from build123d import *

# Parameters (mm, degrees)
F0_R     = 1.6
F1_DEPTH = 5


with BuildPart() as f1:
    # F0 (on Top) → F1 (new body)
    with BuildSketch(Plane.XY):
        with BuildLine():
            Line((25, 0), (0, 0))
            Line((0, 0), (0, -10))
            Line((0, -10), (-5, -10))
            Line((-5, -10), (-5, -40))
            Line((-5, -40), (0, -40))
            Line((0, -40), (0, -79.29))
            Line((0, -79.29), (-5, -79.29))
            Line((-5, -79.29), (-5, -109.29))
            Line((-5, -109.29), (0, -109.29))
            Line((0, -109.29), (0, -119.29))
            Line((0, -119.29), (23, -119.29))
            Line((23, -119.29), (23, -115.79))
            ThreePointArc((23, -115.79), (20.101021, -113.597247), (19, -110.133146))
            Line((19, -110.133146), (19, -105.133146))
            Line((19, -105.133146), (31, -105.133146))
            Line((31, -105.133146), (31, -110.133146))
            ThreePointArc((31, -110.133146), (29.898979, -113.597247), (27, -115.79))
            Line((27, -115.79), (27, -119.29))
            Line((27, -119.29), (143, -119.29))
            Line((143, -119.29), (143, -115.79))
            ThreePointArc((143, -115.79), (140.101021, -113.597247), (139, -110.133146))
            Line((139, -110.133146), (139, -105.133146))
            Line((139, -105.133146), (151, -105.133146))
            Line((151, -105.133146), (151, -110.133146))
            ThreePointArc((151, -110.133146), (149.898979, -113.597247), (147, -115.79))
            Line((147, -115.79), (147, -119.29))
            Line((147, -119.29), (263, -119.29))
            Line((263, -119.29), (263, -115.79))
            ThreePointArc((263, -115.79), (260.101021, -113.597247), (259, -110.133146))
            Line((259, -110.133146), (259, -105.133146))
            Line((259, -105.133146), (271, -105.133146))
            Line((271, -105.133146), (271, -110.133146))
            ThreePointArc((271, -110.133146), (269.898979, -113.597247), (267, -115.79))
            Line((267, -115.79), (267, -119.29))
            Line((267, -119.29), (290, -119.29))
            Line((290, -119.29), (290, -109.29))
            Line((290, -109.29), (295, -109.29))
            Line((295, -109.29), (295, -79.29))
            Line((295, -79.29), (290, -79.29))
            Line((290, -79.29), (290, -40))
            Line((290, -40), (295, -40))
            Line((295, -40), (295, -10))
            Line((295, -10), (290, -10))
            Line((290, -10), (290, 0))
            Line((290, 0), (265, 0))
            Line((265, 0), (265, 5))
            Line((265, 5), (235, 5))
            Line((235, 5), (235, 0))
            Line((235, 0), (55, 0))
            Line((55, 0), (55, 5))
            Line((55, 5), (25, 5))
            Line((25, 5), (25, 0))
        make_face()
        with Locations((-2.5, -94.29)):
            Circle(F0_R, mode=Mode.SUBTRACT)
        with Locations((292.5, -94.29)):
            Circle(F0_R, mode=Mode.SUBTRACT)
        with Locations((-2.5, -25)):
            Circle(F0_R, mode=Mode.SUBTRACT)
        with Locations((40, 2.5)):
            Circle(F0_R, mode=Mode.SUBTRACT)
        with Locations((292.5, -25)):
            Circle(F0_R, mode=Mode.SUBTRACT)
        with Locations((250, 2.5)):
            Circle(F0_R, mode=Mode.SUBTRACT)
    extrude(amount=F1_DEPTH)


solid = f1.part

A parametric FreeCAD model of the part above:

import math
import FreeCAD as App
import Part
import Sketcher
from FreeCAD import Vector
Q = App.Units.Quantity

doc = App.newDocument("Part")
body = doc.addObject("PartDesign::Body", "Body")

# Sketch on XY plane
sketch1 = body.newObject("Sketcher::SketchObject", "Sketch")
sketch1.AttachmentSupport = (doc.getObject("XY_Plane"), [""])
sketch1.MapMode = "FlatFace"
sketch1.addGeometry(Part.LineSegment(Vector(25, 0, 0), Vector(0, 0, 0)), False)
sketch1.addGeometry(Part.LineSegment(Vector(0, 0, 0), Vector(0, -10, 0)), False)
sketch1.addGeometry(Part.LineSegment(Vector(0, -10, 0), Vector(-5, -10, 0)), False)
sketch1.addGeometry(Part.LineSegment(Vector(-5, -10, 0), Vector(-5, -40, 0)), False)
sketch1.addGeometry(Part.LineSegment(Vector(-5, -40, 0), Vector(0, -40, 0)), False)
sketch1.addGeometry(Part.LineSegment(Vector(0, -40, 0), Vector(0, -79.3, 0)), False)
sketch1.addGeometry(Part.LineSegment(Vector(0, -79.3, 0), Vector(-5, -79.3, 0)), False)
sketch1.addGeometry(Part.LineSegment(Vector(-5, -79.3, 0), Vector(-5, -109.3, 0)), False)
sketch1.addGeometry(Part.LineSegment(Vector(-5, -109.3, 0), Vector(0, -109.3, 0)), False)
sketch1.addGeometry(Part.LineSegment(Vector(0, -109.3, 0), Vector(0, -119.3, 0)), False)
sketch1.addGeometry(Part.LineSegment(Vector(0, -119.3, 0), Vector(23, -119.3, 0)), False)
sketch1.addGeometry(Part.LineSegment(Vector(23, -119.3, 0), Vector(23, -115.8, 0)), False)
sketch1.addGeometry(Part.ArcOfCircle(Part.Circle(Vector(25, -110.1, 0), Vector(0, 0, 1), 6), math.radians(-180), math.radians(-109)), False)
sketch1.addGeometry(Part.LineSegment(Vector(19, -110.1, 0), Vector(19, -105.1, 0)), False)
sketch1.addGeometry(Part.LineSegment(Vector(19, -105.1, 0), Vector(31, -105.1, 0)), False)
sketch1.addGeometry(Part.LineSegment(Vector(31, -105.1, 0), Vector(31, -110.1, 0)), False)
sketch1.addGeometry(Part.ArcOfCircle(Part.Circle(Vector(25, -110.1, 0), Vector(0, 0, 1), 6), math.radians(-71), math.radians(0)), False)
sketch1.addGeometry(Part.LineSegment(Vector(27, -115.8, 0), Vector(27, -119.3, 0)), False)
sketch1.addGeometry(Part.LineSegment(Vector(27, -119.3, 0), Vector(143, -119.3, 0)), False)
sketch1.addGeometry(Part.LineSegment(Vector(143, -119.3, 0), Vector(143, -115.8, 0)), False)
sketch1.addGeometry(Part.ArcOfCircle(Part.Circle(Vector(145, -110.1, 0), Vector(0, 0, 1), 6), math.radians(-180), math.radians(-109)), False)
sketch1.addGeometry(Part.LineSegment(Vector(139, -110.1, 0), Vector(139, -105.1, 0)), False)
sketch1.addGeometry(Part.LineSegment(Vector(139, -105.1, 0), Vector(151, -105.1, 0)), False)
sketch1.addGeometry(Part.LineSegment(Vector(151, -105.1, 0), Vector(151, -110.1, 0)), False)
sketch1.addGeometry(Part.ArcOfCircle(Part.Circle(Vector(145, -110.1, 0), Vector(0, 0, 1), 6), math.radians(-71), math.radians(0)), False)
sketch1.addGeometry(Part.LineSegment(Vector(147, -115.8, 0), Vector(147, -119.3, 0)), False)
sketch1.addGeometry(Part.LineSegment(Vector(147, -119.3, 0), Vector(263, -119.3, 0)), False)
sketch1.addGeometry(Part.LineSegment(Vector(263, -119.3, 0), Vector(263, -115.8, 0)), False)
sketch1.addGeometry(Part.ArcOfCircle(Part.Circle(Vector(265, -110.1, 0), Vector(0, 0, 1), 6), math.radians(-180), math.radians(-109)), False)
sketch1.addGeometry(Part.LineSegment(Vector(259, -110.1, 0), Vector(259, -105.1, 0)), False)
sketch1.addGeometry(Part.LineSegment(Vector(259, -105.1, 0), Vector(271, -105.1, 0)), False)
sketch1.addGeometry(Part.LineSegment(Vector(271, -105.1, 0), Vector(271, -110.1, 0)), False)
sketch1.addGeometry(Part.ArcOfCircle(Part.Circle(Vector(265, -110.1, 0), Vector(0, 0, 1), 6), math.radians(-71), math.radians(0)), False)
sketch1.addGeometry(Part.LineSegment(Vector(267, -115.8, 0), Vector(267, -119.3, 0)), False)
sketch1.addGeometry(Part.LineSegment(Vector(267, -119.3, 0), Vector(290, -119.3, 0)), False)
sketch1.addGeometry(Part.LineSegment(Vector(290, -119.3, 0), Vector(290, -109.3, 0)), False)
sketch1.addGeometry(Part.LineSegment(Vector(290, -109.3, 0), Vector(295, -109.3, 0)), False)
sketch1.addGeometry(Part.LineSegment(Vector(295, -109.3, 0), Vector(295, -79.3, 0)), False)
sketch1.addGeometry(Part.LineSegment(Vector(295, -79.3, 0), Vector(290, -79.3, 0)), False)
sketch1.addGeometry(Part.LineSegment(Vector(290, -79.3, 0), Vector(290, -40, 0)), False)
sketch1.addGeometry(Part.LineSegment(Vector(290, -40, 0), Vector(295, -40, 0)), False)
sketch1.addGeometry(Part.LineSegment(Vector(295, -40, 0), Vector(295, -10, 0)), False)
sketch1.addGeometry(Part.LineSegment(Vector(295, -10, 0), Vector(290, -10, 0)), False)
sketch1.addGeometry(Part.LineSegment(Vector(290, -10, 0), Vector(290, 0, 0)), False)
sketch1.addGeometry(Part.LineSegment(Vector(290, 0, 0), Vector(265, 0, 0)), False)
sketch1.addGeometry(Part.LineSegment(Vector(265, 0, 0), Vector(265, 5, 0)), False)
sketch1.addGeometry(Part.LineSegment(Vector(265, 5, 0), Vector(235, 5, 0)), False)
sketch1.addGeometry(Part.LineSegment(Vector(235, 5, 0), Vector(235, 0, 0)), False)
sketch1.addGeometry(Part.LineSegment(Vector(235, 0, 0), Vector(55, 0, 0)), False)
sketch1.addGeometry(Part.LineSegment(Vector(55, 0, 0), Vector(55, 5, 0)), False)
sketch1.addGeometry(Part.LineSegment(Vector(55, 5, 0), Vector(25, 5, 0)), False)
sketch1.addGeometry(Part.LineSegment(Vector(25, 5, 0), Vector(25, 0, 0)), False)
sketch1.addGeometry(Part.Circle(Vector(-2.5, -94.3, 0), Vector(0, 0, 1), 1.6), False)
sketch1.addGeometry(Part.Circle(Vector(292.5, -94.3, 0), Vector(0, 0, 1), 1.6), False)
sketch1.addGeometry(Part.Circle(Vector(-2.5, -25, 0), Vector(0, 0, 1), 1.6), False)
sketch1.addGeometry(Part.Circle(Vector(40, 2.5, 0), Vector(0, 0, 1), 1.6), False)
sketch1.addGeometry(Part.Circle(Vector(292.5, -25, 0), Vector(0, 0, 1), 1.6), False)
sketch1.addGeometry(Part.Circle(Vector(250, 2.5, 0), Vector(0, 0, 1), 1.6), False)
sketch1.addConstraint(Sketcher.Constraint("Coincident", 0, 2, 1, 1))
sketch1.addConstraint(Sketcher.Constraint("Coincident", 1, 2, 2, 1))
sketch1.addConstraint(Sketcher.Constraint("Coincident", 2, 2, 3, 1))
sketch1.addConstraint(Sketcher.Constraint("Coincident", 3, 2, 4, 1))
sketch1.addConstraint(Sketcher.Constraint("Coincident", 4, 2, 5, 1))
sketch1.addConstraint(Sketcher.Constraint("Coincident", 5, 2, 6, 1))
sketch1.addConstraint(Sketcher.Constraint("Coincident", 6, 2, 7, 1))
sketch1.addConstraint(Sketcher.Constraint("Coincident", 7, 2, 8, 1))
sketch1.addConstraint(Sketcher.Constraint("Coincident", 8, 2, 9, 1))
sketch1.addConstraint(Sketcher.Constraint("Coincident", 9, 2, 10, 1))
sketch1.addConstraint(Sketcher.Constraint("Coincident", 10, 2, 11, 1))
sketch1.addConstraint(Sketcher.Constraint("Coincident", 11, 2, 12, 2))
sketch1.addConstraint(Sketcher.Constraint("Tangent", 12, 1, 13, 1))
sketch1.addConstraint(Sketcher.Constraint("Coincident", 13, 2, 14, 1))
sketch1.addConstraint(Sketcher.Constraint("Coincident", 14, 2, 15, 1))
sketch1.addConstraint(Sketcher.Constraint("Tangent", 15, 2, 16, 2))
sketch1.addConstraint(Sketcher.Constraint("Coincident", 16, 1, 17, 1))
sketch1.addConstraint(Sketcher.Constraint("Coincident", 17, 2, 18, 1))
sketch1.addConstraint(Sketcher.Constraint("Coincident", 18, 2, 19, 1))
sketch1.addConstraint(Sketcher.Constraint("Coincident", 19, 2, 20, 2))
sketch1.addConstraint(Sketcher.Constraint("Tangent", 20, 1, 21, 1))
sketch1.addConstraint(Sketcher.Constraint("Coincident", 21, 2, 22, 1))
sketch1.addConstraint(Sketcher.Constraint("Coincident", 22, 2, 23, 1))
sketch1.addConstraint(Sketcher.Constraint("Tangent", 23, 2, 24, 2))
sketch1.addConstraint(Sketcher.Constraint("Coincident", 24, 1, 25, 1))
sketch1.addConstraint(Sketcher.Constraint("Coincident", 25, 2, 26, 1))
sketch1.addConstraint(Sketcher.Constraint("Coincident", 26, 2, 27, 1))
sketch1.addConstraint(Sketcher.Constraint("Coincident", 27, 2, 28, 2))
sketch1.addConstraint(Sketcher.Constraint("Tangent", 28, 1, 29, 1))
sketch1.addConstraint(Sketcher.Constraint("Coincident", 29, 2, 30, 1))
sketch1.addConstraint(Sketcher.Constraint("Coincident", 30, 2, 31, 1))
sketch1.addConstraint(Sketcher.Constraint("Tangent", 31, 2, 32, 2))
sketch1.addConstraint(Sketcher.Constraint("Coincident", 32, 1, 33, 1))
sketch1.addConstraint(Sketcher.Constraint("Coincident", 33, 2, 34, 1))
sketch1.addConstraint(Sketcher.Constraint("Coincident", 34, 2, 35, 1))
sketch1.addConstraint(Sketcher.Constraint("Coincident", 35, 2, 36, 1))
sketch1.addConstraint(Sketcher.Constraint("Coincident", 36, 2, 37, 1))
sketch1.addConstraint(Sketcher.Constraint("Coincident", 37, 2, 38, 1))
sketch1.addConstraint(Sketcher.Constraint("Coincident", 38, 2, 39, 1))
sketch1.addConstraint(Sketcher.Constraint("Coincident", 39, 2, 40, 1))
sketch1.addConstraint(Sketcher.Constraint("Coincident", 40, 2, 41, 1))
sketch1.addConstraint(Sketcher.Constraint("Coincident", 41, 2, 42, 1))
sketch1.addConstraint(Sketcher.Constraint("Coincident", 42, 2, 43, 1))
sketch1.addConstraint(Sketcher.Constraint("Coincident", 43, 2, 44, 1))
sketch1.addConstraint(Sketcher.Constraint("Coincident", 44, 2, 45, 1))
sketch1.addConstraint(Sketcher.Constraint("Coincident", 45, 2, 46, 1))
sketch1.addConstraint(Sketcher.Constraint("Coincident", 46, 2, 47, 1))
sketch1.addConstraint(Sketcher.Constraint("Coincident", 47, 2, 48, 1))
sketch1.addConstraint(Sketcher.Constraint("Coincident", 48, 2, 49, 1))
sketch1.addConstraint(Sketcher.Constraint("Coincident", 49, 2, 50, 1))
sketch1.addConstraint(Sketcher.Constraint("Coincident", 50, 2, 51, 1))
sketch1.addConstraint(Sketcher.Constraint("Coincident", 51, 2, 0, 1))
sketch1.addConstraint(Sketcher.Constraint("Horizontal", 0))
sketch1.addConstraint(Sketcher.Constraint("Vertical", 1))
sketch1.addConstraint(Sketcher.Constraint("Horizontal", 2))
sketch1.addConstraint(Sketcher.Constraint("Vertical", 3))
sketch1.addConstraint(Sketcher.Constraint("Horizontal", 4))
sketch1.addConstraint(Sketcher.Constraint("Vertical", 5))
sketch1.addConstraint(Sketcher.Constraint("Horizontal", 6))
sketch1.addConstraint(Sketcher.Constraint("Vertical", 7))
sketch1.addConstraint(Sketcher.Constraint("Horizontal", 8))
sketch1.addConstraint(Sketcher.Constraint("Vertical", 9))
sketch1.addConstraint(Sketcher.Constraint("Horizontal", 10))
sketch1.addConstraint(Sketcher.Constraint("Vertical", 11))
sketch1.addConstraint(Sketcher.Constraint("Vertical", 13))
sketch1.addConstraint(Sketcher.Constraint("Horizontal", 14))
sketch1.addConstraint(Sketcher.Constraint("Vertical", 15))
sketch1.addConstraint(Sketcher.Constraint("Vertical", 17))
sketch1.addConstraint(Sketcher.Constraint("Horizontal", 18))
sketch1.addConstraint(Sketcher.Constraint("Vertical", 19))
sketch1.addConstraint(Sketcher.Constraint("Vertical", 21))
sketch1.addConstraint(Sketcher.Constraint("Horizontal", 22))
sketch1.addConstraint(Sketcher.Constraint("Vertical", 23))
sketch1.addConstraint(Sketcher.Constraint("Vertical", 25))
sketch1.addConstraint(Sketcher.Constraint("Horizontal", 26))
sketch1.addConstraint(Sketcher.Constraint("Vertical", 27))
sketch1.addConstraint(Sketcher.Constraint("Vertical", 29))
sketch1.addConstraint(Sketcher.Constraint("Horizontal", 30))
sketch1.addConstraint(Sketcher.Constraint("Vertical", 31))
sketch1.addConstraint(Sketcher.Constraint("Vertical", 33))
sketch1.addConstraint(Sketcher.Constraint("Horizontal", 34))
sketch1.addConstraint(Sketcher.Constraint("Vertical", 35))
sketch1.addConstraint(Sketcher.Constraint("Horizontal", 36))
sketch1.addConstraint(Sketcher.Constraint("Vertical", 37))
sketch1.addConstraint(Sketcher.Constraint("Horizontal", 38))
sketch1.addConstraint(Sketcher.Constraint("Vertical", 39))
sketch1.addConstraint(Sketcher.Constraint("Horizontal", 40))
sketch1.addConstraint(Sketcher.Constraint("Vertical", 41))
sketch1.addConstraint(Sketcher.Constraint("Horizontal", 42))
sketch1.addConstraint(Sketcher.Constraint("Vertical", 43))
sketch1.addConstraint(Sketcher.Constraint("Horizontal", 44))
sketch1.addConstraint(Sketcher.Constraint("Vertical", 45))
sketch1.addConstraint(Sketcher.Constraint("Horizontal", 46))
sketch1.addConstraint(Sketcher.Constraint("Vertical", 47))
sketch1.addConstraint(Sketcher.Constraint("Horizontal", 48))
sketch1.addConstraint(Sketcher.Constraint("Vertical", 49))
sketch1.addConstraint(Sketcher.Constraint("Horizontal", 50))
sketch1.addConstraint(Sketcher.Constraint("Vertical", 51))
sketch1.addConstraint(Sketcher.Constraint("Coincident", 0, 2, -1, 1))
sketch1.addConstraint(Sketcher.Constraint("Coincident", 16, 3, 12, 3))
sketch1.addConstraint(Sketcher.Constraint("Coincident", 24, 3, 20, 3))
sketch1.addConstraint(Sketcher.Constraint("Coincident", 32, 3, 28, 3))
sketch1.addConstraint(Sketcher.Constraint("Equal", 12, 16))
sketch1.addConstraint(Sketcher.Constraint("Equal", 16, 20))
sketch1.addConstraint(Sketcher.Constraint("Equal", 20, 24))
sketch1.addConstraint(Sketcher.Constraint("Equal", 24, 28))
sketch1.addConstraint(Sketcher.Constraint("Equal", 28, 32))
sketch1.addConstraint(Sketcher.Constraint("Equal", 52, 53))
sketch1.addConstraint(Sketcher.Constraint("Equal", 53, 54))
sketch1.addConstraint(Sketcher.Constraint("Equal", 54, 55))
sketch1.addConstraint(Sketcher.Constraint("Equal", 55, 56))
sketch1.addConstraint(Sketcher.Constraint("Equal", 56, 57))
sketch1.addConstraint(Sketcher.Constraint("PointOnObject", 4, 2, -2))
sketch1.addConstraint(Sketcher.Constraint("PointOnObject", 8, 2, -2))
sketch1.addConstraint(Sketcher.Constraint("PointOnObject", 43, 2, -1))
sketch1.addConstraint(Sketcher.Constraint("PointOnObject", 47, 2, -1))
sketch1.addConstraint(Sketcher.Constraint("Horizontal", 16, 3, 20, 3))
sketch1.addConstraint(Sketcher.Constraint("Horizontal", 24, 3, 28, 3))
sketch1.addConstraint(Sketcher.Constraint("Horizontal", 52, 3, 53, 3))
sketch1.addConstraint(Sketcher.Constraint("Horizontal", 54, 3, 56, 3))
sketch1.addConstraint(Sketcher.Constraint("Horizontal", 55, 3, 57, 3))
sketch1.addConstraint(Sketcher.Constraint("Horizontal", 11, 2, 16, 1))
sketch1.addConstraint(Sketcher.Constraint("Horizontal", 10, 2, 17, 2))
sketch1.addConstraint(Sketcher.Constraint("Horizontal", 16, 1, 19, 2))
sketch1.addConstraint(Sketcher.Constraint("Horizontal", 14, 2, 21, 2))
sketch1.addConstraint(Sketcher.Constraint("Horizontal", 19, 2, 24, 1))
sketch1.addConstraint(Sketcher.Constraint("Horizontal", 18, 2, 25, 2))
sketch1.addConstraint(Sketcher.Constraint("Horizontal", 24, 1, 27, 2))
sketch1.addConstraint(Sketcher.Constraint("Horizontal", 22, 2, 29, 2))
sketch1.addConstraint(Sketcher.Constraint("Horizontal", 27, 2, 32, 1))
sketch1.addConstraint(Sketcher.Constraint("Horizontal", 26, 2, 33, 2))
sketch1.addConstraint(Sketcher.Constraint("Horizontal", 8, 2, 35, 2))
sketch1.addConstraint(Sketcher.Constraint("Horizontal", 6, 2, 37, 2))
sketch1.addConstraint(Sketcher.Constraint("Horizontal", 4, 2, 39, 2))
sketch1.addConstraint(Sketcher.Constraint("Horizontal", 2, 2, 41, 2))
sketch1.addConstraint(Sketcher.Constraint("Horizontal", 46, 2, 49, 2))
sketch1.addConstraint(Sketcher.Constraint("Vertical", 52, 3, 54, 3))
sketch1.addConstraint(Sketcher.Constraint("Vertical", 53, 3, 56, 3))
sketch1.addConstraint(Sketcher.Constraint("Vertical", 3, 2, 6, 2))
sketch1.addConstraint(Sketcher.Constraint("Vertical", 35, 2, 38, 2))
sketch1.addConstraint(Sketcher.Constraint("Vertical", 37, 2, 40, 2))
sketch1.addConstraint(Sketcher.Constraint("Vertical", 39, 2, 42, 2))
sketch1.addConstraint(Sketcher.Constraint("Equal", 18, 26))
sketch1.addConstraint(Sketcher.Constraint("Equal", 10, 34))
sketch1.addConstraint(Sketcher.Constraint("Equal", 8, 36))
sketch1.addConstraint(Sketcher.Constraint("Equal", 0, 44))
sketch1.addConstraint(Sketcher.Constraint("Equal", 46, 50))
sketch1.addConstraint(Sketcher.Constraint("Equal", 50, 3))
sketch1.addConstraint(Sketcher.Constraint("Equal", 3, 7))
sketch1.addConstraint(Sketcher.Constraint("Equal", 1, 9))
sketch1.addConstraint(Sketcher.Constraint("Equal", 42, 13))
sketch1.addConstraint(Sketcher.Constraint("Equal", 31, 45))
sketch1.addConstraint(Sketcher.Constraint("Diameter", 52, Q("3.2 mm")))
sketch1.addConstraint(Sketcher.Constraint("DistanceX", 0, 2, 0, 1, Q("25 mm")))
sketch1.addConstraint(Sketcher.Constraint("DistanceX", 2, 2, 2, 1, Q("5 mm")))
sketch1.addConstraint(Sketcher.Constraint("DistanceX", 10, 1, 10, 2, Q("23 mm")))
sketch1.addConstraint(Sketcher.Constraint("DistanceX", 14, 1, 14, 2, Q("12 mm")))
sketch1.addConstraint(Sketcher.Constraint("DistanceX", 18, 1, 18, 2, Q("116 mm")))
sketch1.addConstraint(Sketcher.Constraint("DistanceX", 46, 2, 46, 1, Q("30 mm")))
sketch1.addConstraint(Sketcher.Constraint("DistanceX", 48, 2, 48, 1, Q("180 mm")))
sketch1.addConstraint(Sketcher.Constraint("DistanceY", 1, 2, 1, 1, Q("10 mm")))
sketch1.addConstraint(Sketcher.Constraint("DistanceY", 11, 1, 11, 2, Q("3.5 mm")))
sketch1.addConstraint(Sketcher.Constraint("DistanceY", 54, 3, -1, 1, Q("25 mm")))
sketch1.addConstraint(Sketcher.Constraint("DistanceX", -1, 1, 55, 3, Q("40 mm")))
sketch1.addConstraint(Sketcher.Constraint("DistanceX", -1, 1, 57, 3, Q("250 mm")))
sketch1.addConstraint(Sketcher.Constraint("DistanceY", 5, 2, 5, 1, Q("39.29 mm")))
sketch1.addConstraint(Sketcher.Constraint("DistanceX", 52, 3, -1, 1, Q("2.5 mm")))
sketch1.addConstraint(Sketcher.Constraint("DistanceX", -1, 1, 53, 3, Q("292.5 mm")))
sketch1.addConstraint(Sketcher.Constraint("DistanceY", -1, 1, 55, 3, Q("2.5 mm")))
sketch1.addConstraint(Sketcher.Constraint("DistanceY", 52, 3, -1, 1, Q("94.29 mm")))
pad1 = body.newObject("PartDesign::Pad", "Pad")
pad1.Profile = sketch1
pad1.Length = 5

doc.recompute()
